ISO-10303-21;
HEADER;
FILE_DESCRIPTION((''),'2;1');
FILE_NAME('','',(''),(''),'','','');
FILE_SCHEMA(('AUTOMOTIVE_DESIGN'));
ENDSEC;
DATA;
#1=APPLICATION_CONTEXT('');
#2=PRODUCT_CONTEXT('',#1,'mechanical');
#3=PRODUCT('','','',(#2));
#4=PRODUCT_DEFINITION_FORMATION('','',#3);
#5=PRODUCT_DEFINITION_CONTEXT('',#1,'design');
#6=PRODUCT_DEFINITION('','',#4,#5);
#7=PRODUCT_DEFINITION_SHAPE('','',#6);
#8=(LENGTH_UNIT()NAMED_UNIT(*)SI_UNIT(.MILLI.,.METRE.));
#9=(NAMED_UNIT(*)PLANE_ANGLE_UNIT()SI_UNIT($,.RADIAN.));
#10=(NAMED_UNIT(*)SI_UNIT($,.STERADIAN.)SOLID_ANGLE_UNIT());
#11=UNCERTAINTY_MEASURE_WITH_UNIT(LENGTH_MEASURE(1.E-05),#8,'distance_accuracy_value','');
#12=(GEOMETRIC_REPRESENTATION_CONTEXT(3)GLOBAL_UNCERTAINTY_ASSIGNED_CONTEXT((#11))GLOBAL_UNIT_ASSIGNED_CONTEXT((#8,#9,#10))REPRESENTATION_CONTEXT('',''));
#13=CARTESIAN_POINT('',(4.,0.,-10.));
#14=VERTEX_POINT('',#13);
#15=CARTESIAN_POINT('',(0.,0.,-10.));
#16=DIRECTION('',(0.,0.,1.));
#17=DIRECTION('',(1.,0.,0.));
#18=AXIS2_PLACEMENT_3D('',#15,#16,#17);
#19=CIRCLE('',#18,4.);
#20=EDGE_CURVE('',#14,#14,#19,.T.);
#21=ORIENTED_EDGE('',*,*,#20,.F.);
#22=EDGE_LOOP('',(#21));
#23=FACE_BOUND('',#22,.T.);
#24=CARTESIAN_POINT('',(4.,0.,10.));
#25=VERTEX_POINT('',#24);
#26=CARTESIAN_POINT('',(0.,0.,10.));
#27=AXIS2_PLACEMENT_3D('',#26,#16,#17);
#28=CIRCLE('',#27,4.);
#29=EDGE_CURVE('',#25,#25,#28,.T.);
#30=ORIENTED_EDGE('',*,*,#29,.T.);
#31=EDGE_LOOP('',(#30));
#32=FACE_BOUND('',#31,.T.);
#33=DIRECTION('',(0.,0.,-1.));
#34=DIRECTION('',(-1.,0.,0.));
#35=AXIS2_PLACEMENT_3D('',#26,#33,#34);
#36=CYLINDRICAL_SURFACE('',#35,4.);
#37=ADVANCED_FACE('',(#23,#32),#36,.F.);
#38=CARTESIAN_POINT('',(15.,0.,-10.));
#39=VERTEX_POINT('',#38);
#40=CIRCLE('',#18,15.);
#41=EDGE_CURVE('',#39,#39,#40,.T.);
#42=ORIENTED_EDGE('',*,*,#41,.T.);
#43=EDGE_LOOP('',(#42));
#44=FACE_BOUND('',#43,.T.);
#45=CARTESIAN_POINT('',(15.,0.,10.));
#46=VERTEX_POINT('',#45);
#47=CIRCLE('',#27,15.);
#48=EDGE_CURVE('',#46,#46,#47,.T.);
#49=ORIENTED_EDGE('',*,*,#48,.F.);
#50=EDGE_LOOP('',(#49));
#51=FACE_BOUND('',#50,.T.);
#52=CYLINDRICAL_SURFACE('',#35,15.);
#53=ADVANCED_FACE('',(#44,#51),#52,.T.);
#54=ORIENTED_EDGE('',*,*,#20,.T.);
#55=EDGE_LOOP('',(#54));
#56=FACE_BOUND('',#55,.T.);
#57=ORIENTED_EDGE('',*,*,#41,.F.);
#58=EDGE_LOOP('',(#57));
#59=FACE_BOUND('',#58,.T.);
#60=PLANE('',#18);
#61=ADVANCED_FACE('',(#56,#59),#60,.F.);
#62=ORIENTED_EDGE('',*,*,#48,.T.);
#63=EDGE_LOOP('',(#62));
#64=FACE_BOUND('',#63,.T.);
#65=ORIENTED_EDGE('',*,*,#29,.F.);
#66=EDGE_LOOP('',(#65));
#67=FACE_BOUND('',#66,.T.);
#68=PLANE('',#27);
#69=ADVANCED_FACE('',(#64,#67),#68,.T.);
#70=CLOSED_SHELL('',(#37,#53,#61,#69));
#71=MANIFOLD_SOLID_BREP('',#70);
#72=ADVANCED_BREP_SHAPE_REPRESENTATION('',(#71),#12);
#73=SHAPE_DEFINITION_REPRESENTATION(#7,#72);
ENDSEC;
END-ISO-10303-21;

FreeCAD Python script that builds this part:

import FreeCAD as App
import Part
import Sketcher
Q = App.Units.Quantity

doc = App.newDocument("Part")
body = doc.addObject("PartDesign::Body", "Body")

# Sketch on XY plane
sketch1 = body.newObject("Sketcher::SketchObject", "Sketch")
sketch1.AttachmentSupport = (doc.getObject("XY_Plane"), [""])
sketch1.MapMode = "FlatFace"
sketch1.addGeometry(Part.Circle(App.Vector(0, 0, 0), App.Vector(0, 0, 1), 15), False)
sketch1.addGeometry(Part.Circle(App.Vector(0, 0, 0), App.Vector(0, 0, 1), 4), False)
sketch1.addConstraint(Sketcher.Constraint("Coincident", 0, 3, -1, 1))
sketch1.addConstraint(Sketcher.Constraint("Coincident", 1, 3, -1, 1))
sketch1.addConstraint(Sketcher.Constraint("Diameter", 0, Q("30 mm")))
sketch1.addConstraint(Sketcher.Constraint("Diameter", 1, Q("8 mm")))
pad1 = body.newObject("PartDesign::Pad", "Pad")
pad1.Profile = sketch1
pad1.Length = 20
pad1.Midplane = True

doc.recompute()
